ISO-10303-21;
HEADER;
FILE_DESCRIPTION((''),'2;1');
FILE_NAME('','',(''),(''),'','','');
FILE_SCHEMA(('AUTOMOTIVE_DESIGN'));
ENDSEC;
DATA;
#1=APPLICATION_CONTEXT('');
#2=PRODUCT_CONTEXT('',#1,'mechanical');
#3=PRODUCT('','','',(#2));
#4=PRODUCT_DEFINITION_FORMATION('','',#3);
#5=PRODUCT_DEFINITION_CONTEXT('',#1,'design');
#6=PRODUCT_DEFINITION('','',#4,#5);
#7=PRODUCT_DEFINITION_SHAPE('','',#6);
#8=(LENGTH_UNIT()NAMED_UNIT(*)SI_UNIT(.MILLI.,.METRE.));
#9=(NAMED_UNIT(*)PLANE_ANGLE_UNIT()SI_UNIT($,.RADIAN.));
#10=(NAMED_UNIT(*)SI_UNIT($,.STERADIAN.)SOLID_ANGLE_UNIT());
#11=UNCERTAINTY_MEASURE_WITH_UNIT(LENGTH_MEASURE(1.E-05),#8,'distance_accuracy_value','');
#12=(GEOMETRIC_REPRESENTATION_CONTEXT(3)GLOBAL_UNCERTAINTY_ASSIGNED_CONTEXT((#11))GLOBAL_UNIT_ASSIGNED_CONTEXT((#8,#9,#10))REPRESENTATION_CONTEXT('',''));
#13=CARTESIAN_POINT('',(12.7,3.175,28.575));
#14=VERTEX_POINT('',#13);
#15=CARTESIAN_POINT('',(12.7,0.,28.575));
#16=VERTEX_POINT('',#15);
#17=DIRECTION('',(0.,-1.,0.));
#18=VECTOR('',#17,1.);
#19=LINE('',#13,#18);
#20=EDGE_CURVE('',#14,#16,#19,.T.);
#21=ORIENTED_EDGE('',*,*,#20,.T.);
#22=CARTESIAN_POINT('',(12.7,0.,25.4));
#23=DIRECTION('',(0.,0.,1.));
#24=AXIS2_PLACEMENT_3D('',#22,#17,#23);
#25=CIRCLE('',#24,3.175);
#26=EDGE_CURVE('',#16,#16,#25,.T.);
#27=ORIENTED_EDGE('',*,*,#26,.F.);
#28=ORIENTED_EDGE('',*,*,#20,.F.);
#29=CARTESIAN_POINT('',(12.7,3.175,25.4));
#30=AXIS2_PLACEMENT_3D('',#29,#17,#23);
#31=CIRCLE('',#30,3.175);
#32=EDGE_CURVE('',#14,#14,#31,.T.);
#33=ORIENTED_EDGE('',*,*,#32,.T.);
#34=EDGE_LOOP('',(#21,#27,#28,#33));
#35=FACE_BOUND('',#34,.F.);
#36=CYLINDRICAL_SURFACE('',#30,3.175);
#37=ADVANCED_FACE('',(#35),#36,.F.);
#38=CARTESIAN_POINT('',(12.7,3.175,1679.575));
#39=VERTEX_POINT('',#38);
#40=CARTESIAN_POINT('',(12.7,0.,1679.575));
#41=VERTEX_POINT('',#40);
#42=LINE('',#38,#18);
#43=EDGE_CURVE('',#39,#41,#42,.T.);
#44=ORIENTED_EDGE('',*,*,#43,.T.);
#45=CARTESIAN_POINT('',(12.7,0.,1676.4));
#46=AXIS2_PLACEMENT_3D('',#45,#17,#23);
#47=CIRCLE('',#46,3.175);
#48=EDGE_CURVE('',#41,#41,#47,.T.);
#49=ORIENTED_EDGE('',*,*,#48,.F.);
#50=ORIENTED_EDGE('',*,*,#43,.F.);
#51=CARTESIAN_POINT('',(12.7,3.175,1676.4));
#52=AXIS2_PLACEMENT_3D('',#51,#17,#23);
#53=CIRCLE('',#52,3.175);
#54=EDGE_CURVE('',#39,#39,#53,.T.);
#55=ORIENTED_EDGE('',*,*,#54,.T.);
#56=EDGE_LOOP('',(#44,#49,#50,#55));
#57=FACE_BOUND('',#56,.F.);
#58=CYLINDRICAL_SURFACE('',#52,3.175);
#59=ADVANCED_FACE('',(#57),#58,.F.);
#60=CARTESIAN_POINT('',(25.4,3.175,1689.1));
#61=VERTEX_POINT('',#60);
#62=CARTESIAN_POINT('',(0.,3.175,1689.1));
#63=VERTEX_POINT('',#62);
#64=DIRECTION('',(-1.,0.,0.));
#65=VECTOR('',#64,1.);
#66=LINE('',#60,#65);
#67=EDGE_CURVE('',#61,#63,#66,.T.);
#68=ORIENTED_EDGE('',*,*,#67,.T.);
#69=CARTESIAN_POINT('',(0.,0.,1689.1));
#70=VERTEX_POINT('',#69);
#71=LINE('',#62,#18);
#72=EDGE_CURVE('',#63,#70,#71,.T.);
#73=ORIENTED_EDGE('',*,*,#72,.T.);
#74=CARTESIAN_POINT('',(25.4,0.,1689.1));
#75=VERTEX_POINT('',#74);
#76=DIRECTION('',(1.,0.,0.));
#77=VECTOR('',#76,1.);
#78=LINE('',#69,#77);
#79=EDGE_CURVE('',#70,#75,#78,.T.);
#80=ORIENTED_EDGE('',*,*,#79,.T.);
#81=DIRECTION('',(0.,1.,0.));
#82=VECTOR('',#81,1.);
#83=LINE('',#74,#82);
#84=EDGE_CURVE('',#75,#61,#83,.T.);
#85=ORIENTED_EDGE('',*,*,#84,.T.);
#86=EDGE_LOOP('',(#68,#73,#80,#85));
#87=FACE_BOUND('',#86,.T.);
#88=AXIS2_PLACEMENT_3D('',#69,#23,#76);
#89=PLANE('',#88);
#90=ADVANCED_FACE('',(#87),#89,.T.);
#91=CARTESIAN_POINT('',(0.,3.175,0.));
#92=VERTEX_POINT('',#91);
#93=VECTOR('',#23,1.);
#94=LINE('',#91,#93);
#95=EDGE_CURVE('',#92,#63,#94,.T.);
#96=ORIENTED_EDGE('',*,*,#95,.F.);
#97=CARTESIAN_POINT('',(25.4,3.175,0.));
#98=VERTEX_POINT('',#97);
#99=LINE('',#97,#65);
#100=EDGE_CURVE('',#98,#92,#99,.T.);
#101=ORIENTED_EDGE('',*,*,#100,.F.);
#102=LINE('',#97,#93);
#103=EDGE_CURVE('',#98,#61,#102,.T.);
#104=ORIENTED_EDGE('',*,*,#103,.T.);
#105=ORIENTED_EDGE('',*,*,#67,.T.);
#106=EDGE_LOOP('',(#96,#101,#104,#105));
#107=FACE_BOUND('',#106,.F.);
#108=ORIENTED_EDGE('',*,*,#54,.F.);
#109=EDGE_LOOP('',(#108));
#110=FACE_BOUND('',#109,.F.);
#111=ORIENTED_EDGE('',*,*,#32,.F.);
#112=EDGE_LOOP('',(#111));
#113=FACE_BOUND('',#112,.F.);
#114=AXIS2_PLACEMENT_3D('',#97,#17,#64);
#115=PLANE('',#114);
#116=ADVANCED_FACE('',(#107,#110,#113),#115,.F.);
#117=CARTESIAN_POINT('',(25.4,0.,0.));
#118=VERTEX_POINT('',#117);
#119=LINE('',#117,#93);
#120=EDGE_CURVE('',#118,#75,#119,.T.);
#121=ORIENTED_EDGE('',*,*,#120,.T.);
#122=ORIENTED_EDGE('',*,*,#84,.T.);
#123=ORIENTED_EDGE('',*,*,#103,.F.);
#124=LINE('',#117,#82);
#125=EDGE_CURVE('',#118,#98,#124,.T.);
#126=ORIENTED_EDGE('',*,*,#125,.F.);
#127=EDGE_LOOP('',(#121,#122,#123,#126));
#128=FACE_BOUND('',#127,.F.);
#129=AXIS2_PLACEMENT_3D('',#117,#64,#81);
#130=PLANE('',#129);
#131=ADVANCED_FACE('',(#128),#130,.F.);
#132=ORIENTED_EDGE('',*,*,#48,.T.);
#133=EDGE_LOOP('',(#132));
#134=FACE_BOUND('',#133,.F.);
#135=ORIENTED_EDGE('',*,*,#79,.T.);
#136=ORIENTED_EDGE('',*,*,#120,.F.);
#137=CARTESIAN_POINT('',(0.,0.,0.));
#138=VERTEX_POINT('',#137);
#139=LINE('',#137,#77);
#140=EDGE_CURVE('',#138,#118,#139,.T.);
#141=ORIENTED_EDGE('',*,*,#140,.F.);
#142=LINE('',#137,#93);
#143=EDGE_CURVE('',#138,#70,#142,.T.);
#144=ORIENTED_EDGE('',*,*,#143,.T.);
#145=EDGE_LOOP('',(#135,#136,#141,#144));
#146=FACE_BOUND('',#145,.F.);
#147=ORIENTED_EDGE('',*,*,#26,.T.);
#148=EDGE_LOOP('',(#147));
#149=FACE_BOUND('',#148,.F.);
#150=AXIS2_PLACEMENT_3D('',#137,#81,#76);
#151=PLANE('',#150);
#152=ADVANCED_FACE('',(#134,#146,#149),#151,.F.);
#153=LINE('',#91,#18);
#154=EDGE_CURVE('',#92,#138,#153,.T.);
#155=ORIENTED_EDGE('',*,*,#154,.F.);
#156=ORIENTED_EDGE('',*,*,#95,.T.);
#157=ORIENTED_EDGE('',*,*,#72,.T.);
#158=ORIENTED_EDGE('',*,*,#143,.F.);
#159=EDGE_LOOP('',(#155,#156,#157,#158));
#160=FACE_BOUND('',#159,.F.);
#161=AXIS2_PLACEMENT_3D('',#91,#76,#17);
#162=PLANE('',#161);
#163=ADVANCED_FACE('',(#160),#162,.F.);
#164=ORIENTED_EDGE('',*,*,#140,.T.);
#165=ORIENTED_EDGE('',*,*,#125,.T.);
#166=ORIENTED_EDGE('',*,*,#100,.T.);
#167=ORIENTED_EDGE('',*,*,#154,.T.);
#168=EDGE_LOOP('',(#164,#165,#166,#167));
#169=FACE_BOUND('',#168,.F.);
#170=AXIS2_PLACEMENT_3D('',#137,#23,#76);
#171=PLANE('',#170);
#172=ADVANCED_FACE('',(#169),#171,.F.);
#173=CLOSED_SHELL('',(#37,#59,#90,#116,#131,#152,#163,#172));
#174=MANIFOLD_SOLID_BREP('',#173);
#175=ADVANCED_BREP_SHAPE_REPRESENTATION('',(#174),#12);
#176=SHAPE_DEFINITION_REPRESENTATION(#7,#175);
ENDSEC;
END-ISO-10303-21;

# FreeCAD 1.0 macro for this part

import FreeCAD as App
import Part
import Sketcher

V = App.Vector
Q = App.Units.Quantity


def add_polygon(sketch, points):
    """Adds a closed chain of lines whose ends are joined by coincident constraints."""
    first, n = sketch.GeometryCount, len(points)
    for a, b in zip(points, points[1:] + points[:1]):
        sketch.addGeometry(Part.LineSegment(App.Vector(*a, 0), App.Vector(*b, 0)), False)
    for i in range(n):
        sketch.addConstraint(Sketcher.Constraint("Coincident", first + i, 2, first + (i + 1) % n, 1))

doc = App.newDocument("Part")
body = doc.addObject("PartDesign::Body", "Body")

# Sketch on XY plane
sketch1 = body.newObject("Sketcher::SketchObject", "Sketch")
sketch1.AttachmentSupport = (doc.getObject("XY_Plane"), [""])
sketch1.MapMode = "FlatFace"
add_polygon(sketch1, [(0, 3.2), (0, 0), (25.4, 0), (25.4, 3.2)])  # lines 0-3
sketch1.addConstraint([
    Sketcher.Constraint("Vertical", 0),
    Sketcher.Constraint("Horizontal", 1),
    Sketcher.Constraint("Vertical", 2),
    Sketcher.Constraint("Horizontal", 3),
    Sketcher.Constraint("Coincident", 0, 2, -1, 1),
    Sketcher.Constraint("DistanceX", 1, 1, 1, 2, Q("1 in")),
    Sketcher.Constraint("DistanceY", 0, 2, 0, 1, Q("0.125 in")),
])
pad1 = body.newObject("PartDesign::Pad", "Pad")
pad1.Profile = sketch1
pad1.Length = Q("66.5 in")

# Sketch on XZ plane
sketch2 = body.newObject("Sketcher::SketchObject", "Sketch001")
sketch2.AttachmentSupport = (doc.getObject("XZ_Plane"), [""])
sketch2.MapMode = "FlatFace"
sketch2.AttachmentOffset = App.Placement(V(0, 0, -0.125 * 25.4), App.Rotation())
sketch2.addGeometry([
    Part.Circle(V(12.7, 25.4, 0), V(0, 0, 1), 3.2),
    Part.Circle(V(12.7, 1676.4, 0), V(0, 0, 1), 3.2),
], False)
sketch2.addConstraint([
    Sketcher.Constraint("Equal", 0, 1),
    Sketcher.Constraint("Vertical", 0, 3, 1, 3),
    Sketcher.Constraint("Diameter", 0, Q("0.25 in")),
    Sketcher.Constraint("DistanceY", -1, 1, 0, 3, Q("1 in")),
    Sketcher.Constraint("DistanceY", -1, 1, 1, 3, Q("66 in")),
    Sketcher.Constraint("DistanceX", -1, 1, 0, 3, Q("0.5 in")),
])
doc.recompute()
hole = body.newObject("PartDesign::Hole", "Hole")
hole.Profile = sketch2
hole.ThreadType = "None"
hole.Diameter = Q("0.25 in")
hole.DepthType = "ThroughAll"
hole.Reversed = True

doc.recompute()
